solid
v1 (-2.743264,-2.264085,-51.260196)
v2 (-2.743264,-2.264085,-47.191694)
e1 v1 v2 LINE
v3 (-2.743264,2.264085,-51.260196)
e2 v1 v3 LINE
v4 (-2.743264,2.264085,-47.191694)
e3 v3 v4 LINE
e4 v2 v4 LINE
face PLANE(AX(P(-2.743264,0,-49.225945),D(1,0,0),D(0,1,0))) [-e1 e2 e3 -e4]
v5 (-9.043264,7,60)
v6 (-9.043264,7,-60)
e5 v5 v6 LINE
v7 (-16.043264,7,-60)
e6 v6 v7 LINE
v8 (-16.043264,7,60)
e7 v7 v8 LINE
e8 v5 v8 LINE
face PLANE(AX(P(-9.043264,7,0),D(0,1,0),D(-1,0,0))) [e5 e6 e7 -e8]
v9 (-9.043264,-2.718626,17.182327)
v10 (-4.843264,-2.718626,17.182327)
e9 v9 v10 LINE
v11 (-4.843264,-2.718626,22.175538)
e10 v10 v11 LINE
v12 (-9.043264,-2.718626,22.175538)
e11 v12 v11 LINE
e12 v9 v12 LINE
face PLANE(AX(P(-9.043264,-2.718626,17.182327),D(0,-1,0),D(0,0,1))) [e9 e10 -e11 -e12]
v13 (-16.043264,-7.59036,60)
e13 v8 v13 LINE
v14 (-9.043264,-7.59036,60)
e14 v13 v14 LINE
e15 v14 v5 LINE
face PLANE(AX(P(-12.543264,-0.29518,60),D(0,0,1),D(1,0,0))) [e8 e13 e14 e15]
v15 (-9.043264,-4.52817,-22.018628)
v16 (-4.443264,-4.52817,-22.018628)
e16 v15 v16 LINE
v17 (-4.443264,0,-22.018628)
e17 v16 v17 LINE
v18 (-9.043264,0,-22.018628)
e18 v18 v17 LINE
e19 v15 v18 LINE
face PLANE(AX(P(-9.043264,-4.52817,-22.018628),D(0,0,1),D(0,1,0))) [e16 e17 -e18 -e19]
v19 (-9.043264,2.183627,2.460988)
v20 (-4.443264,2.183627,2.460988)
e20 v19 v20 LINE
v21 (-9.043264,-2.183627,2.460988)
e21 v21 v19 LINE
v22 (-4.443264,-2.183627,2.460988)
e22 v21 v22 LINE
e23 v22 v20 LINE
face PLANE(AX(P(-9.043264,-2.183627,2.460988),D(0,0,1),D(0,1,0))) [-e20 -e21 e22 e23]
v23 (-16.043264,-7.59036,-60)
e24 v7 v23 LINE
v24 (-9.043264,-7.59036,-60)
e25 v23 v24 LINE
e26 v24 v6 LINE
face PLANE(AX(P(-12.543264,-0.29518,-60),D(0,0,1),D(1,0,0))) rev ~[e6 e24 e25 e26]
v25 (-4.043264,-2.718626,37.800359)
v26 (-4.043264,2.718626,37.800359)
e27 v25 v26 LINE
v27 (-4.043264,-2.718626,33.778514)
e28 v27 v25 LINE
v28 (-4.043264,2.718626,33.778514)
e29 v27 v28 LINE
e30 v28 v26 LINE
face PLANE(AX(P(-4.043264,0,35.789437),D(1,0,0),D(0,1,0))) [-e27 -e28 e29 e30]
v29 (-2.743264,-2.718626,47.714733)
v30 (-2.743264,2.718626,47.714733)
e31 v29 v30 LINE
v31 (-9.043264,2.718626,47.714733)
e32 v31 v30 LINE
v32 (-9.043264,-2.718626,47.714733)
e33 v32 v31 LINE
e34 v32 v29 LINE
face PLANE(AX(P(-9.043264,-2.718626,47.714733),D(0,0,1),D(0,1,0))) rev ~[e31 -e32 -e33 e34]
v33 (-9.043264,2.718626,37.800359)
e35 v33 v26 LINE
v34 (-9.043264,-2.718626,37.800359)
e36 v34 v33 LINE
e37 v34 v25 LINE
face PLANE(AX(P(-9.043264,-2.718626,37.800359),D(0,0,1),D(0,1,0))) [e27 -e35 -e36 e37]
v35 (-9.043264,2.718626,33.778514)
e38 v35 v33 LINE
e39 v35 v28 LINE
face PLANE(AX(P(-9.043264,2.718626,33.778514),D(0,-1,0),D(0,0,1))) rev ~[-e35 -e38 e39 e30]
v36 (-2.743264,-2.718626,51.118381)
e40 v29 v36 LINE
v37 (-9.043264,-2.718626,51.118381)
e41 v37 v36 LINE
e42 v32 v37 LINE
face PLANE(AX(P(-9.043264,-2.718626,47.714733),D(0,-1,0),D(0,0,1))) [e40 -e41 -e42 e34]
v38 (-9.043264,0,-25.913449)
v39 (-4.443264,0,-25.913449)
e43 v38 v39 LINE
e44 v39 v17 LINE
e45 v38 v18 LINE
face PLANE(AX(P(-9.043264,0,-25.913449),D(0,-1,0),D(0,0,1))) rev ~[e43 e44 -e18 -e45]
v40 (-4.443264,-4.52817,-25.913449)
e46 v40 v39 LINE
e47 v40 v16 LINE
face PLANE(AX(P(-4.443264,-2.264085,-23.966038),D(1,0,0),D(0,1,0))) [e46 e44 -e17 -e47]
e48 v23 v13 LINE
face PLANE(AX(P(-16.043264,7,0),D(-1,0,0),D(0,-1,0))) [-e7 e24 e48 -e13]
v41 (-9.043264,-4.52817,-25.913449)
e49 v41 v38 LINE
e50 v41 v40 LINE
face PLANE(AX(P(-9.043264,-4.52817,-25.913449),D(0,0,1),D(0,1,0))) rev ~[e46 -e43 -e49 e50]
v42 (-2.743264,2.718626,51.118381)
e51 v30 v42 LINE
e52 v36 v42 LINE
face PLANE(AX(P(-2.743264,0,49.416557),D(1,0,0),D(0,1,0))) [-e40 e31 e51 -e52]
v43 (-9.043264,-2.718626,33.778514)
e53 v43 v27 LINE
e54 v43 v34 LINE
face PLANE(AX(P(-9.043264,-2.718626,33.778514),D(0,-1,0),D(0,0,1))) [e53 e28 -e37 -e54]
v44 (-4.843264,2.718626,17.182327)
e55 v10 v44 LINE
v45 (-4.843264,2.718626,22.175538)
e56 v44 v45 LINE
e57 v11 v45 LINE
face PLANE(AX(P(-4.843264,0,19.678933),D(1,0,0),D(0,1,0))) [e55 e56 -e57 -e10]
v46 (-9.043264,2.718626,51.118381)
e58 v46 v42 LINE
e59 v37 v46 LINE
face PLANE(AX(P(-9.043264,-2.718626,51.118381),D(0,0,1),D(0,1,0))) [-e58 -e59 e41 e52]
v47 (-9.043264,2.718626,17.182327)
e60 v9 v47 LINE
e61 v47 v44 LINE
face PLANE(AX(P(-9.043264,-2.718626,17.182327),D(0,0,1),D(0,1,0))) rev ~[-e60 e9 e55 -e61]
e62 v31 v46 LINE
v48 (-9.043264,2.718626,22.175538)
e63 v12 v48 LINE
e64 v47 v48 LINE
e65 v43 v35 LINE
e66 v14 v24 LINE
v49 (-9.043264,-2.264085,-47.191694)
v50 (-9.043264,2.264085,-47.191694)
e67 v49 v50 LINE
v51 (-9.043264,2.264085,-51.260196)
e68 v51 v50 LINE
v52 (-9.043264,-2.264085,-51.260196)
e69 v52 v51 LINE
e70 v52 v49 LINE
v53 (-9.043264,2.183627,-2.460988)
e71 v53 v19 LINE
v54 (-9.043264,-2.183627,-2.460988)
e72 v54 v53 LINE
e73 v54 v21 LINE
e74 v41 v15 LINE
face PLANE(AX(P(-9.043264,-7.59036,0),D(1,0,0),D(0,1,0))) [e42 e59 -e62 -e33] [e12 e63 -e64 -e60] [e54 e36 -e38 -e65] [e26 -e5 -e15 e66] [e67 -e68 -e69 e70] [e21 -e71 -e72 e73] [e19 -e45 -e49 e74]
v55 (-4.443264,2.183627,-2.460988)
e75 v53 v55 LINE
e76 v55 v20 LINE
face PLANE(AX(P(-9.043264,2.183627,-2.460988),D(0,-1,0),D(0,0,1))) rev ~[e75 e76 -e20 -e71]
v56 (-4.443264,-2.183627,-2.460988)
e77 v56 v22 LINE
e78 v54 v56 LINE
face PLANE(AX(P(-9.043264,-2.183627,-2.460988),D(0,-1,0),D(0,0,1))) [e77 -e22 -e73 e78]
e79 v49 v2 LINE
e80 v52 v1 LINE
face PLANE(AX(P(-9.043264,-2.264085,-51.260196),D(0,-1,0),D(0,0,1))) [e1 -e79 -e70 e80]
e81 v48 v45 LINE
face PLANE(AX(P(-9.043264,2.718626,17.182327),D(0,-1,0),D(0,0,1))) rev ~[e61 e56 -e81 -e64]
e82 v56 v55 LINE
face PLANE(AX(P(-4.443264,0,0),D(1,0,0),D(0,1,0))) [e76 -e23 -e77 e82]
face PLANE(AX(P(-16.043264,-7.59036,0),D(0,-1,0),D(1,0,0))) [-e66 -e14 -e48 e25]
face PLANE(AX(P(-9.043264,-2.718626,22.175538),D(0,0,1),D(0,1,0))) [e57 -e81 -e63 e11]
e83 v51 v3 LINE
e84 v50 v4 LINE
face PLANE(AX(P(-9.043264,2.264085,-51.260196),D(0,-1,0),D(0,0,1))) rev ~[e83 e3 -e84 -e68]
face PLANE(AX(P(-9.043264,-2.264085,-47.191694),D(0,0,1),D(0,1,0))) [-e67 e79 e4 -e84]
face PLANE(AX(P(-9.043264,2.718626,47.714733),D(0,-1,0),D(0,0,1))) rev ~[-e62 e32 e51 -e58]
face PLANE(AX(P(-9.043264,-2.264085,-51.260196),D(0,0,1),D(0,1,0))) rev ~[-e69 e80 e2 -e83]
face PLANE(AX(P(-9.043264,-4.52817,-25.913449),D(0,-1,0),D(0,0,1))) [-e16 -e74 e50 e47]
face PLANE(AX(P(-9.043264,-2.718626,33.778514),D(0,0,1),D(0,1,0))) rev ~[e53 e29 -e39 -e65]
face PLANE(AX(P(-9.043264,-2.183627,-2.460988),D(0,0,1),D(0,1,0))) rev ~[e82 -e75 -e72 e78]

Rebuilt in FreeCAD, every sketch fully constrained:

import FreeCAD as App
import Part
import Sketcher


def add_polygon(sketch, points):
    """Adds a closed chain of lines whose ends are joined by coincident constraints."""
    first, n = sketch.GeometryCount, len(points)
    for a, b in zip(points, points[1:] + points[:1]):
        sketch.addGeometry(Part.LineSegment(App.Vector(*a, 0), App.Vector(*b, 0)), False)
    for i in range(n):
        sketch.addConstraint(Sketcher.Constraint("Coincident", first + i, 2, first + (i + 1) % n, 1))

doc = App.newDocument("Part")
body = doc.addObject("PartDesign::Body", "Body")

# Sketch on XY plane
sketch1 = doc.addObject("Sketcher::SketchObject", "Sketch")
body.addObject(sketch1)
sketch1.AttachmentSupport = (doc.XY_Plane, [""])
sketch1.MapMode = "FlatFace"
add_polygon(sketch1, [(-9.043264, 7), (-16.043264, 7), (-16.043264, -7.59036), (-9.043264, -7.59036)])  # lines 0-3
sketch1.addConstraint([
    Sketcher.Constraint("Horizontal", 0),
    Sketcher.Constraint("Vertical", 1),
    Sketcher.Constraint("Horizontal", 2),
    Sketcher.Constraint("Vertical", 3),
    Sketcher.Constraint("DistanceX", 0, 2, 0, 1, 7.0),
    Sketcher.Constraint("DistanceY", -1, 1, 0, 2, 7.0),
    Sketcher.Constraint("DistanceY", 1, 2, 1, 1, 14.59036),
    Sketcher.Constraint("DistanceX", 0, 2, -1, 1, 16.043264),
])
pad1 = doc.addObject("PartDesign::Pad", "Pad")
body.addObject(pad1)
pad1.Profile = sketch1
pad1.Length = 120
pad1.Midplane = True

# Sketch on YZ plane
sketch2 = doc.addObject("Sketcher::SketchObject", "Sketch001")
body.addObject(sketch2)
sketch2.AttachmentSupport = (doc.YZ_Plane, [""])
sketch2.MapMode = "FlatFace"
sketch2.AttachmentOffset = App.Placement(App.Vector(0, 0, -9.043264), App.Rotation())
add_polygon(sketch2, [(-2.718626, 51.118381), (-2.718626, 47.714733), (2.718626, 47.714733), (2.718626, 51.118381)])  # lines 0-3
add_polygon(sketch2, [(-2.264085, -47.191694), (-2.264085, -51.260196), (2.264085, -51.260196), (2.264085, -47.191694)])  # lines 4-7
sketch2.addConstraint([
    Sketcher.Constraint("Vertical", 0),
    Sketcher.Constraint("Horizontal", 1),
    Sketcher.Constraint("Vertical", 2),
    Sketcher.Constraint("Horizontal", 3),
    Sketcher.Constraint("Vertical", 4),
    Sketcher.Constraint("Horizontal", 5),
    Sketcher.Constraint("Vertical", 6),
    Sketcher.Constraint("Horizontal", 7),
    Sketcher.Constraint("DistanceX", 5, 1, 5, 2, 4.52817),
    Sketcher.Constraint("DistanceX", 1, 1, 1, 2, 5.437252),
    Sketcher.Constraint("DistanceY", 0, 2, 0, 1, 3.403648),
    Sketcher.Constraint("DistanceY", 4, 2, 4, 1, 4.068502),
    Sketcher.Constraint("DistanceY", -1, 1, 2, 2, 51.118381),
    Sketcher.Constraint("DistanceX", 0, 2, 4, 2, 0.454541),
    Sketcher.Constraint("DistanceY", 4, 2, 0, 2, 98.974929),
    Sketcher.Constraint("DistanceX", 0, 2, -1, 1, 2.718626),
])
pad2 = doc.addObject("PartDesign::Pad", "Pad001")
body.addObject(pad2)
pad2.Profile = sketch2
pad2.Length = 6.3

# Sketch on YZ plane
sketch3 = doc.addObject("Sketcher::SketchObject", "Sketch002")
body.addObject(sketch3)
sketch3.AttachmentSupport = (doc.YZ_Plane, [""])
sketch3.MapMode = "FlatFace"
sketch3.AttachmentOffset = App.Placement(App.Vector(0, 0, -9.043264), App.Rotation())
add_polygon(sketch3, [(-2.718626, 22.175538), (-2.718626, 17.182327), (2.718626, 17.182327), (2.718626, 22.175538)])  # lines 0-3
sketch3.addConstraint([
    Sketcher.Constraint("Vertical", 0),
    Sketcher.Constraint("Horizontal", 1),
    Sketcher.Constraint("Vertical", 2),
    Sketcher.Constraint("Horizontal", 3),
    Sketcher.Constraint("DistanceY", 0, 2, 0, 1, 4.993211),
    Sketcher.Constraint("DistanceX", 1, 1, 1, 2, 5.437252),
    Sketcher.Constraint("DistanceY", -1, 1, 2, 2, 22.175538),
    Sketcher.Constraint("DistanceX", 0, 2, -1, 1, 2.718626),
])
pad3 = doc.addObject("PartDesign::Pad", "Pad002")
body.addObject(pad3)
pad3.Profile = sketch3
pad3.Length = 4.2

# Sketch on YZ plane
sketch4 = doc.addObject("Sketcher::SketchObject", "Sketch003")
body.addObject(sketch4)
sketch4.AttachmentSupport = (doc.YZ_Plane, [""])
sketch4.MapMode = "FlatFace"
sketch4.AttachmentOffset = App.Placement(App.Vector(0, 0, -9.043264), App.Rotation())
add_polygon(sketch4, [(-2.718626, 37.800359), (-2.718626, 33.778514), (2.718626, 33.778514), (2.718626, 37.800359)])  # lines 0-3
sketch4.addConstraint([
    Sketcher.Constraint("Vertical", 0),
    Sketcher.Constraint("Horizontal", 1),
    Sketcher.Constraint("Vertical", 2),
    Sketcher.Constraint("Horizontal", 3),
    Sketcher.Constraint("DistanceX", 1, 1, 1, 2, 5.437252),
    Sketcher.Constraint("DistanceY", 0, 2, 0, 1, 4.021845),
    Sketcher.Constraint("DistanceY", -1, 1, 2, 2, 37.800359),
    Sketcher.Constraint("DistanceX", 0, 2, -1, 1, 2.718626),
])
pad4 = doc.addObject("PartDesign::Pad", "Pad003")
body.addObject(pad4)
pad4.Profile = sketch4
pad4.Length = 5

# Sketch on YZ plane
sketch5 = doc.addObject("Sketcher::SketchObject", "Sketch004")
body.addObject(sketch5)
sketch5.AttachmentSupport = (doc.YZ_Plane, [""])
sketch5.MapMode = "FlatFace"
sketch5.AttachmentOffset = App.Placement(App.Vector(0, 0, -9.043264), App.Rotation())
add_polygon(sketch5, [(-2.183627, 2.460988), (-2.183627, -2.460988), (2.183627, -2.460988), (2.183627, 2.460988)])  # lines 0-3
sketch5.addConstraint([
    Sketcher.Constraint("Vertical", 0),
    Sketcher.Constraint("Horizontal", 1),
    Sketcher.Constraint("Vertical", 2),
    Sketcher.Constraint("Horizontal", 3),
    Sketcher.Constraint("Symmetric", 0, 2, 2, 2, -1, 1),
    Sketcher.Constraint("DistanceX", 1, 1, 1, 2, 4.367254),
    Sketcher.Constraint("DistanceY", 0, 2, 0, 1, 4.921976),
])
pad5 = doc.addObject("PartDesign::Pad", "Pad004")
body.addObject(pad5)
pad5.Profile = sketch5
pad5.Length = 4.6

# Sketch on YZ plane
sketch6 = doc.addObject("Sketcher::SketchObject", "Sketch005")
body.addObject(sketch6)
sketch6.AttachmentSupport = (doc.YZ_Plane, [""])
sketch6.MapMode = "FlatFace"
sketch6.AttachmentOffset = App.Placement(App.Vector(0, 0, -9.043264), App.Rotation())
add_polygon(sketch6, [(-4.52817, -22.018628), (-4.52817, -25.913449), (0, -25.913449), (0, -22.018628)])  # lines 0-3
sketch6.addConstraint([
    Sketcher.Constraint("Vertical", 0),
    Sketcher.Constraint("Horizontal", 1),
    Sketcher.Constraint("Vertical", 2),
    Sketcher.Constraint("Horizontal", 3),
    Sketcher.Constraint("PointOnObject", 1, 2, -2),
    Sketcher.Constraint("DistanceX", 1, 1, 1, 2, 4.52817),
    Sketcher.Constraint("DistanceY", 0, 2, 0, 1, 3.894821),
    Sketcher.Constraint("DistanceY", 0, 2, -1, 1, 25.913449),
])
pad6 = doc.addObject("PartDesign::Pad", "Pad005")
body.addObject(pad6)
pad6.Profile = sketch6
pad6.Length = 4.6

doc.recompute()
